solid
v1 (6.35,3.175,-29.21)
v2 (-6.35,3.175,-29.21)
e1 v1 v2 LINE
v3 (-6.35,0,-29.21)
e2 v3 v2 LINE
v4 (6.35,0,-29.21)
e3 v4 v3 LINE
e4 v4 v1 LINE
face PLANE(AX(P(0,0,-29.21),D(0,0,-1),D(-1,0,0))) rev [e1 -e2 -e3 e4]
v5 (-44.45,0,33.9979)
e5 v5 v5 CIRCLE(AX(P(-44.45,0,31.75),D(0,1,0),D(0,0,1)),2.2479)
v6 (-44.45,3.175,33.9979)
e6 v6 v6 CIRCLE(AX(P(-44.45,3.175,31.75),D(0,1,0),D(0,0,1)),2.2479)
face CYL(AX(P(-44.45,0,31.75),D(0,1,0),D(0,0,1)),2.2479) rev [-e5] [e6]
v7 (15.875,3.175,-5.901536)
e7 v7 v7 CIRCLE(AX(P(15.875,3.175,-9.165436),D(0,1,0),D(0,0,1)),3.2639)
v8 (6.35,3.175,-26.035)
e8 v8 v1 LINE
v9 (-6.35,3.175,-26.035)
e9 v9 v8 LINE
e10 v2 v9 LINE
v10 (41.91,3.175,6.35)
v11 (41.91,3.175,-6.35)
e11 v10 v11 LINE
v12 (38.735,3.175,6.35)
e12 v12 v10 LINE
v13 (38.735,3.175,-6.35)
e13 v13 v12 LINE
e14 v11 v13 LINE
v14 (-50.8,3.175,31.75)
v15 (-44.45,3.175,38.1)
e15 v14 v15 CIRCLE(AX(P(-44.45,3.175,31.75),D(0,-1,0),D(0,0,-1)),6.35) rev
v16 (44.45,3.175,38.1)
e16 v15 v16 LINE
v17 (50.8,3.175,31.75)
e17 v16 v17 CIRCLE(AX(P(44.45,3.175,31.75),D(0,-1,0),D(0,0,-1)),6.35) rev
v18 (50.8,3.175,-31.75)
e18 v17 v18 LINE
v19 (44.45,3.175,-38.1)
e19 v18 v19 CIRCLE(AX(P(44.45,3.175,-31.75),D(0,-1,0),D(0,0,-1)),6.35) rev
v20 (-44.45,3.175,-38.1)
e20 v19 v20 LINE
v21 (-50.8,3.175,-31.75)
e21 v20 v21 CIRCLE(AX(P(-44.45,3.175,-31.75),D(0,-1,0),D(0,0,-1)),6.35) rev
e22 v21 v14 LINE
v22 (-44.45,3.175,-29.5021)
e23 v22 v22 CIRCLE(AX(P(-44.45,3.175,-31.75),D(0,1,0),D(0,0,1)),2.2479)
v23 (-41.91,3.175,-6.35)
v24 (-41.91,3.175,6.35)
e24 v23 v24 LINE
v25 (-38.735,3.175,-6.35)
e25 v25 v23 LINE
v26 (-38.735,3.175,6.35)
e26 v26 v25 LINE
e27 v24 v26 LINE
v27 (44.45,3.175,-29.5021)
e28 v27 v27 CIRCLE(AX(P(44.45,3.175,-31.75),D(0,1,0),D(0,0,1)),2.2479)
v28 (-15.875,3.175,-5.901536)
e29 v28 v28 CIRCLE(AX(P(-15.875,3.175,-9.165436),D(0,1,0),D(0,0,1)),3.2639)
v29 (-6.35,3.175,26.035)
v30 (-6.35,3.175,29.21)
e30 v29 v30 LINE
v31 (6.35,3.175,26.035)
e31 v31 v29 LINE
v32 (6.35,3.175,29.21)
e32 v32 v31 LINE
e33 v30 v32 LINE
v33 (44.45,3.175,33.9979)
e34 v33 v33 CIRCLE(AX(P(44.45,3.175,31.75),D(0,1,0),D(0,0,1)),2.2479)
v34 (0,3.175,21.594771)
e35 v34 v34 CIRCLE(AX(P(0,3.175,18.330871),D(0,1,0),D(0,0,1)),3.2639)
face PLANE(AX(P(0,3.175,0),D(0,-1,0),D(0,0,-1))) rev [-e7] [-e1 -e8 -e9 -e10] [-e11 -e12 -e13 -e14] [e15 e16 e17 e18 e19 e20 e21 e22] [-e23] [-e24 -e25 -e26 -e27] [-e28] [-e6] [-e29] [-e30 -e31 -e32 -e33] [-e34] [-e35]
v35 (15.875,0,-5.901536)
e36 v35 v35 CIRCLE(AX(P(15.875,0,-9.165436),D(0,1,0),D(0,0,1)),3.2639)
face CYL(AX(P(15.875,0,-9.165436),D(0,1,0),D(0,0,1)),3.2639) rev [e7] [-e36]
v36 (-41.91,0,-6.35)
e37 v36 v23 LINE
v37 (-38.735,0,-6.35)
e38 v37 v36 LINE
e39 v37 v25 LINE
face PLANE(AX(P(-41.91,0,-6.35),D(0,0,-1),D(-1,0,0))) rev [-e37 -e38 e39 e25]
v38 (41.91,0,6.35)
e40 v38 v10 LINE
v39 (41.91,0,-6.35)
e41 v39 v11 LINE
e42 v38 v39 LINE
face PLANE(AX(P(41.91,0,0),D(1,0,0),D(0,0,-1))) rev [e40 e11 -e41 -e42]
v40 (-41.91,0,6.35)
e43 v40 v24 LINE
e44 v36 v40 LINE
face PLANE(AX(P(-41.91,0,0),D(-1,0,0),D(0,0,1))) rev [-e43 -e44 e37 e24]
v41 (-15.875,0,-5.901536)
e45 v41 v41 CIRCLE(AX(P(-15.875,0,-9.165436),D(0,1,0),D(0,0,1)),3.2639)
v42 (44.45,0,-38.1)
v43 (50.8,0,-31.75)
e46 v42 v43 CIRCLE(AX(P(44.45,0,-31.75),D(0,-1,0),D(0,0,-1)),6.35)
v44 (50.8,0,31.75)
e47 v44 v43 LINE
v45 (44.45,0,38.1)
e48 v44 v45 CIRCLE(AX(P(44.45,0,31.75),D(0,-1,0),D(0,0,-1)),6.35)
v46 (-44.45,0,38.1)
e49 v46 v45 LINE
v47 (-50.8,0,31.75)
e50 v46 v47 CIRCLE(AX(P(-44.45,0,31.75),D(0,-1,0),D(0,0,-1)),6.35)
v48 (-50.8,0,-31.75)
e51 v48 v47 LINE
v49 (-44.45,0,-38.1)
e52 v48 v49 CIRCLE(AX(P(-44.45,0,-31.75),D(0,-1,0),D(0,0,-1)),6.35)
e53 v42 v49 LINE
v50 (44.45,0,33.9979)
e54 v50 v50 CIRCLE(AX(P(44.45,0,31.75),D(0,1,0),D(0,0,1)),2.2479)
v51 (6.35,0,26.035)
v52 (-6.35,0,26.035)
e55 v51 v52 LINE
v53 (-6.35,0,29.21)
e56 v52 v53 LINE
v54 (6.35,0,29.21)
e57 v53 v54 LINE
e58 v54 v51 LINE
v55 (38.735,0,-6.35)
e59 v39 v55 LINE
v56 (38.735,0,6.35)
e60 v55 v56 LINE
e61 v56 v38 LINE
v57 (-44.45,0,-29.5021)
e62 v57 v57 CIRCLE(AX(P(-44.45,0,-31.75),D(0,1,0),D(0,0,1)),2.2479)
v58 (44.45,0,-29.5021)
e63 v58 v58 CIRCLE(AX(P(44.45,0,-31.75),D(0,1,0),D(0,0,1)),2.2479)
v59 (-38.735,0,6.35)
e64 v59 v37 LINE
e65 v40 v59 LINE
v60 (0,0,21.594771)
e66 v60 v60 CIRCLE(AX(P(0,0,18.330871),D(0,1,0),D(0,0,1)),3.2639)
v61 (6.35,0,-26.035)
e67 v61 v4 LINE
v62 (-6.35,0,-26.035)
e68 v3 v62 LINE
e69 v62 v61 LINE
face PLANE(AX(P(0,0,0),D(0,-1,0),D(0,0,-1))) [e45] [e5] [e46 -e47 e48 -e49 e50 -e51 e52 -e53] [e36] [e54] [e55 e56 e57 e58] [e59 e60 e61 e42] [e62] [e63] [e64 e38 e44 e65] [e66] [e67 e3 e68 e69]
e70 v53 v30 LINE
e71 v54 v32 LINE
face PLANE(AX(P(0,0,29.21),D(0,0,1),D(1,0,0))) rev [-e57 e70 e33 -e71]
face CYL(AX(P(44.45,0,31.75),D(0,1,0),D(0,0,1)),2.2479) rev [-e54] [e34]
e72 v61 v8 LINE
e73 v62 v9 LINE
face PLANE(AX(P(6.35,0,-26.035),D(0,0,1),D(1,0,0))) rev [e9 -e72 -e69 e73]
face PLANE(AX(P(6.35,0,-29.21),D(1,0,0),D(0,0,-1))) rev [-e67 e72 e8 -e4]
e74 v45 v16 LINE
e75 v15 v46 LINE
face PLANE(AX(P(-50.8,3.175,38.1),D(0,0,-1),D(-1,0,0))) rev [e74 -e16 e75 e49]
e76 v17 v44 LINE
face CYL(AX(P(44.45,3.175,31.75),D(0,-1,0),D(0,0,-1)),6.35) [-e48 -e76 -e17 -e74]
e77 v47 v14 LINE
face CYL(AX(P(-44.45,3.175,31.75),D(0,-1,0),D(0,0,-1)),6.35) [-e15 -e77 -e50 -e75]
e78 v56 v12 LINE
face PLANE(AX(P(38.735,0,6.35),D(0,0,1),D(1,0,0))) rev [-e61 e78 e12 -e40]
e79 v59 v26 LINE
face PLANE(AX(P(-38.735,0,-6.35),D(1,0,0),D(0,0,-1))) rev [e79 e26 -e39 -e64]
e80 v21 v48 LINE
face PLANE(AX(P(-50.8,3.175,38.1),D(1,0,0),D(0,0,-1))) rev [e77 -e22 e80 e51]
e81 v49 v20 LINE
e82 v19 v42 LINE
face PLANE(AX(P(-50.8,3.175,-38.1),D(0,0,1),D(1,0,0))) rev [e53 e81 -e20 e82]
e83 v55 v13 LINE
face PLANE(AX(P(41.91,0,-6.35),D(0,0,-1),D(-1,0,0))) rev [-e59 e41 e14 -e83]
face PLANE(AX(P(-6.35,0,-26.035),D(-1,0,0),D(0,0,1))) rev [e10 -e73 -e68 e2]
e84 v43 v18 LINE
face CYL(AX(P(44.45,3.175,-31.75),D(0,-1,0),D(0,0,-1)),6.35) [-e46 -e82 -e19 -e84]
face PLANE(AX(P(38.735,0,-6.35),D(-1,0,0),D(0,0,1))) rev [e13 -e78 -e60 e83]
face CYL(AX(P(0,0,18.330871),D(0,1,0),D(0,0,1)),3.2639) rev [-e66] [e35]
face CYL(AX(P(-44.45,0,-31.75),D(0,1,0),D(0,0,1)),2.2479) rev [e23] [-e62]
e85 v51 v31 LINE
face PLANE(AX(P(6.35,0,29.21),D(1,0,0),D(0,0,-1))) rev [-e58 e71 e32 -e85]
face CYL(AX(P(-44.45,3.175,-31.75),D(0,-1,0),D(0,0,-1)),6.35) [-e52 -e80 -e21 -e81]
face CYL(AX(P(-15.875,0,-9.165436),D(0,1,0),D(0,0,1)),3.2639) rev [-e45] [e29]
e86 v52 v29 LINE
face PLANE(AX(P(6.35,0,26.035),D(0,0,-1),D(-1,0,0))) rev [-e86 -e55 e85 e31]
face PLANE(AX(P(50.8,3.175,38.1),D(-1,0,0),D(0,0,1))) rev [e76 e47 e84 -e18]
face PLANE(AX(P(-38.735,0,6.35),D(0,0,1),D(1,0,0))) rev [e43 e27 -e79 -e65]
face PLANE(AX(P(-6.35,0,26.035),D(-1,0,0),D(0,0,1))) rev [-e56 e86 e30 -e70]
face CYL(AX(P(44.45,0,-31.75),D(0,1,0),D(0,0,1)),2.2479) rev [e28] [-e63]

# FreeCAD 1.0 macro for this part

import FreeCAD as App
import Part
import Sketcher

V = App.Vector
Q = App.Units.Quantity


def edges_at(feature, points):
    """Names of the edges that pass closest to the given points."""
    edges = feature.Shape.Edges
    near = lambda p: min(range(len(edges)), key=lambda i: edges[i].distToShape(Part.Vertex(*p))[0])
    return sorted({f"Edge{near(p) + 1}" for p in points})


def add_polygon(sketch, points):
    """Adds a closed chain of lines whose ends are joined by coincident constraints."""
    first, n = sketch.GeometryCount, len(points)
    for a, b in zip(points, points[1:] + points[:1]):
        sketch.addGeometry(Part.LineSegment(App.Vector(*a, 0), App.Vector(*b, 0)), False)
    for i in range(n):
        sketch.addConstraint(Sketcher.Constraint("Coincident", first + i, 2, first + (i + 1) % n, 1))

doc = App.newDocument("Part")
body = doc.addObject("PartDesign::Body", "Body")

sketch1 = body.newObject("Sketcher::SketchObject", "Sketch")
sketch1.AttachmentSupport = (doc.getObject("XZ_Plane"), [""])
sketch1.MapMode = "FlatFace"
add_polygon(sketch1, [(-51, -38), (-51, 38), (51, 38), (51, -38)])
sketch1.addConstraint(Sketcher.Constraint("Vertical", 0))
sketch1.addConstraint(Sketcher.Constraint("Horizontal", 1))
sketch1.addConstraint(Sketcher.Constraint("Vertical", 2))
sketch1.addConstraint(Sketcher.Constraint("Horizontal", 3))
sketch1.addConstraint(Sketcher.Constraint("Symmetric", 0, 2, 2, 2, -1, 1))
sketch1.addConstraint(Sketcher.Constraint("DistanceX", 1, 1, 1, 2, Q("4 in")))
sketch1.addConstraint(Sketcher.Constraint("DistanceY", 0, 1, 0, 2, Q("3 in")))
pad1 = body.newObject("PartDesign::Pad", "Pad")
pad1.Profile = sketch1
pad1.Length = Q("0.125 in")
pad1.Reversed = True
doc.recompute()

fillet = body.newObject("PartDesign::Fillet", "Fillet")
fillet.Base = (pad1, edges_at(pad1, [
    (50.8, 1.587, 38.1),
    (-50.8, 1.587, 38.1),
    (-50.8, 1.587, -38.1),
    (50.8, 1.587, -38.1),
]))
fillet.Radius = Q("0.25 in")

sketch2 = body.newObject("Sketcher::SketchObject", "Sketch001")
sketch2.AttachmentSupport = (doc.getObject("XZ_Plane"), [""])
sketch2.MapMode = "FlatFace"
sketch2.AttachmentOffset = App.Placement(V(0, 0, -0.125 * 25.4), App.Rotation())
sketch2.addGeometry(Part.Circle(V(-44.5, -31.8, 0), V(0, 0, 1), 2.2), False)
sketch2.addGeometry(Part.Circle(V(44.5, -31.8, 0), V(0, 0, 1), 2.2), False)
sketch2.addGeometry(Part.Circle(V(44.5, 31.8, 0), V(0, 0, 1), 2.2), False)
sketch2.addGeometry(Part.Circle(V(-44.5, 31.8, 0), V(0, 0, 1), 2.2), False)
add_polygon(sketch2, [(-41.9, -6.3), (-41.9, 6.3), (-38.7, 6.3), (-38.7, -6.3)])
add_polygon(sketch2, [(6.3, -29.2), (-6.3, -29.2), (-6.3, -26), (6.3, -26)])
add_polygon(sketch2, [(41.9, -6.3), (38.7, -6.3), (38.7, 6.3), (41.9, 6.3)])
add_polygon(sketch2, [(6.3, 29.2), (6.3, 26), (-6.3, 26), (-6.3, 29.2)])
sketch2.addConstraint(Sketcher.Constraint("Vertical", 4))
sketch2.addConstraint(Sketcher.Constraint("Horizontal", 5))
sketch2.addConstraint(Sketcher.Constraint("Vertical", 6))
sketch2.addConstraint(Sketcher.Constraint("Horizontal", 7))
sketch2.addConstraint(Sketcher.Constraint("Horizontal", 8))
sketch2.addConstraint(Sketcher.Constraint("Vertical", 9))
sketch2.addConstraint(Sketcher.Constraint("Horizontal", 10))
sketch2.addConstraint(Sketcher.Constraint("Vertical", 11))
sketch2.addConstraint(Sketcher.Constraint("Horizontal", 12))
sketch2.addConstraint(Sketcher.Constraint("Vertical", 13))
sketch2.addConstraint(Sketcher.Constraint("Horizontal", 14))
sketch2.addConstraint(Sketcher.Constraint("Vertical", 15))
sketch2.addConstraint(Sketcher.Constraint("Vertical", 16))
sketch2.addConstraint(Sketcher.Constraint("Horizontal", 17))
sketch2.addConstraint(Sketcher.Constraint("Vertical", 18))
sketch2.addConstraint(Sketcher.Constraint("Horizontal", 19))
sketch2.addConstraint(Sketcher.Constraint("Equal", 0, 1))
sketch2.addConstraint(Sketcher.Constraint("Equal", 1, 2))
sketch2.addConstraint(Sketcher.Constraint("Equal", 2, 3))
sketch2.addConstraint(Sketcher.Constraint("Symmetric", 0, 3, 2, 3, -1, 1))
sketch2.addConstraint(Sketcher.Constraint("Symmetric", 1, 3, 3, 3, -1, 1))
sketch2.addConstraint(Sketcher.Constraint("Symmetric", 5, 2, 12, 2, -1, 1))
sketch2.addConstraint(Sketcher.Constraint("Symmetric", 7, 2, 14, 2, -1, 1))
sketch2.addConstraint(Sketcher.Constraint("Symmetric", 9, 2, 16, 2, -1, 1))
sketch2.addConstraint(Sketcher.Constraint("Symmetric", 11, 2, 18, 2, -1, 1))
sketch2.addConstraint(Sketcher.Constraint("Symmetric", 0, 3, 1, 3, -2))
sketch2.addConstraint(Sketcher.Constraint("Horizontal", 7, 2, 12, 2))
sketch2.addConstraint(Sketcher.Constraint("Vertical", 11, 2, 16, 2))
sketch2.addConstraint(Sketcher.Constraint("Equal", 19, 4))
sketch2.addConstraint(Sketcher.Constraint("Equal", 14, 9))
sketch2.addConstraint(Sketcher.Constraint("Diameter", 0, Q("0.177 in")))
sketch2.addConstraint(Sketcher.Constraint("DistanceX", 8, 2, 8, 1, Q("0.5 in")))
sketch2.addConstraint(Sketcher.Constraint("DistanceY", 4, 2, 3, 3, Q("1 in")))
sketch2.addConstraint(Sketcher.Constraint("DistanceX", 0, 3, 10, 2, Q("2 in")))
sketch2.addConstraint(Sketcher.Constraint("DistanceX", 3, 3, 4, 2, Q("0.1 in")))
sketch2.addConstraint(Sketcher.Constraint("DistanceY", 0, 3, 8, 2, Q("0.1 in")))
sketch2.addConstraint(Sketcher.Constraint("DistanceX", 5, 1, 5, 2, Q("0.125 in")))
pocket1 = body.newObject("PartDesign::Pocket", "Pocket")
pocket1.Profile = sketch2
pocket1.Type = "ThroughAll"
pocket1.Reversed = True

sketch3 = body.newObject("Sketcher::SketchObject", "Sketch002")
sketch3.AttachmentSupport = (doc.getObject("XZ_Plane"), [""])
sketch3.MapMode = "FlatFace"
sketch3.AttachmentOffset = App.Placement(V(0, 0, -0.125 * 25.4), App.Rotation())
sketch3.addGeometry(Part.Circle(V(-15.9, -9.2, 0), V(0, 0, 1), 3.3), False)
sketch3.addGeometry(Part.Circle(V(15.9, -9.2, 0), V(0, 0, 1), 3.3), False)
sketch3.addGeometry(Part.Circle(V(0, 18.3, 0), V(0, 0, 1), 3.3), False)
sketch3.addConstraint(Sketcher.Constraint("Equal", 0, 1))
sketch3.addConstraint(Sketcher.Constraint("Equal", 1, 2))
sketch3.addConstraint(Sketcher.Constraint("Symmetric", 0, 3, 1, 3, -2))
sketch3.addConstraint(Sketcher.Constraint("PointOnObject", 2, 3, -2))
sketch3.addConstraint(Sketcher.Constraint("Diameter", 0, Q("0.257 in")))
sketch3.addConstraint(Sketcher.Constraint("DistanceX", 0, 3, 1, 3, Q("1.25 in")))
sketch3.addConstraint(Sketcher.Constraint("DistanceY", -1, 1, 2, 3, 18.330871))
sketch3.addConstraint(Sketcher.Constraint("DistanceY", 0, 3, -1, 1, 9.165436))
pocket2 = body.newObject("PartDesign::Pocket", "Pocket001")
pocket2.Profile = sketch3
pocket2.Type = "ThroughAll"
pocket2.Reversed = True

doc.recompute()
